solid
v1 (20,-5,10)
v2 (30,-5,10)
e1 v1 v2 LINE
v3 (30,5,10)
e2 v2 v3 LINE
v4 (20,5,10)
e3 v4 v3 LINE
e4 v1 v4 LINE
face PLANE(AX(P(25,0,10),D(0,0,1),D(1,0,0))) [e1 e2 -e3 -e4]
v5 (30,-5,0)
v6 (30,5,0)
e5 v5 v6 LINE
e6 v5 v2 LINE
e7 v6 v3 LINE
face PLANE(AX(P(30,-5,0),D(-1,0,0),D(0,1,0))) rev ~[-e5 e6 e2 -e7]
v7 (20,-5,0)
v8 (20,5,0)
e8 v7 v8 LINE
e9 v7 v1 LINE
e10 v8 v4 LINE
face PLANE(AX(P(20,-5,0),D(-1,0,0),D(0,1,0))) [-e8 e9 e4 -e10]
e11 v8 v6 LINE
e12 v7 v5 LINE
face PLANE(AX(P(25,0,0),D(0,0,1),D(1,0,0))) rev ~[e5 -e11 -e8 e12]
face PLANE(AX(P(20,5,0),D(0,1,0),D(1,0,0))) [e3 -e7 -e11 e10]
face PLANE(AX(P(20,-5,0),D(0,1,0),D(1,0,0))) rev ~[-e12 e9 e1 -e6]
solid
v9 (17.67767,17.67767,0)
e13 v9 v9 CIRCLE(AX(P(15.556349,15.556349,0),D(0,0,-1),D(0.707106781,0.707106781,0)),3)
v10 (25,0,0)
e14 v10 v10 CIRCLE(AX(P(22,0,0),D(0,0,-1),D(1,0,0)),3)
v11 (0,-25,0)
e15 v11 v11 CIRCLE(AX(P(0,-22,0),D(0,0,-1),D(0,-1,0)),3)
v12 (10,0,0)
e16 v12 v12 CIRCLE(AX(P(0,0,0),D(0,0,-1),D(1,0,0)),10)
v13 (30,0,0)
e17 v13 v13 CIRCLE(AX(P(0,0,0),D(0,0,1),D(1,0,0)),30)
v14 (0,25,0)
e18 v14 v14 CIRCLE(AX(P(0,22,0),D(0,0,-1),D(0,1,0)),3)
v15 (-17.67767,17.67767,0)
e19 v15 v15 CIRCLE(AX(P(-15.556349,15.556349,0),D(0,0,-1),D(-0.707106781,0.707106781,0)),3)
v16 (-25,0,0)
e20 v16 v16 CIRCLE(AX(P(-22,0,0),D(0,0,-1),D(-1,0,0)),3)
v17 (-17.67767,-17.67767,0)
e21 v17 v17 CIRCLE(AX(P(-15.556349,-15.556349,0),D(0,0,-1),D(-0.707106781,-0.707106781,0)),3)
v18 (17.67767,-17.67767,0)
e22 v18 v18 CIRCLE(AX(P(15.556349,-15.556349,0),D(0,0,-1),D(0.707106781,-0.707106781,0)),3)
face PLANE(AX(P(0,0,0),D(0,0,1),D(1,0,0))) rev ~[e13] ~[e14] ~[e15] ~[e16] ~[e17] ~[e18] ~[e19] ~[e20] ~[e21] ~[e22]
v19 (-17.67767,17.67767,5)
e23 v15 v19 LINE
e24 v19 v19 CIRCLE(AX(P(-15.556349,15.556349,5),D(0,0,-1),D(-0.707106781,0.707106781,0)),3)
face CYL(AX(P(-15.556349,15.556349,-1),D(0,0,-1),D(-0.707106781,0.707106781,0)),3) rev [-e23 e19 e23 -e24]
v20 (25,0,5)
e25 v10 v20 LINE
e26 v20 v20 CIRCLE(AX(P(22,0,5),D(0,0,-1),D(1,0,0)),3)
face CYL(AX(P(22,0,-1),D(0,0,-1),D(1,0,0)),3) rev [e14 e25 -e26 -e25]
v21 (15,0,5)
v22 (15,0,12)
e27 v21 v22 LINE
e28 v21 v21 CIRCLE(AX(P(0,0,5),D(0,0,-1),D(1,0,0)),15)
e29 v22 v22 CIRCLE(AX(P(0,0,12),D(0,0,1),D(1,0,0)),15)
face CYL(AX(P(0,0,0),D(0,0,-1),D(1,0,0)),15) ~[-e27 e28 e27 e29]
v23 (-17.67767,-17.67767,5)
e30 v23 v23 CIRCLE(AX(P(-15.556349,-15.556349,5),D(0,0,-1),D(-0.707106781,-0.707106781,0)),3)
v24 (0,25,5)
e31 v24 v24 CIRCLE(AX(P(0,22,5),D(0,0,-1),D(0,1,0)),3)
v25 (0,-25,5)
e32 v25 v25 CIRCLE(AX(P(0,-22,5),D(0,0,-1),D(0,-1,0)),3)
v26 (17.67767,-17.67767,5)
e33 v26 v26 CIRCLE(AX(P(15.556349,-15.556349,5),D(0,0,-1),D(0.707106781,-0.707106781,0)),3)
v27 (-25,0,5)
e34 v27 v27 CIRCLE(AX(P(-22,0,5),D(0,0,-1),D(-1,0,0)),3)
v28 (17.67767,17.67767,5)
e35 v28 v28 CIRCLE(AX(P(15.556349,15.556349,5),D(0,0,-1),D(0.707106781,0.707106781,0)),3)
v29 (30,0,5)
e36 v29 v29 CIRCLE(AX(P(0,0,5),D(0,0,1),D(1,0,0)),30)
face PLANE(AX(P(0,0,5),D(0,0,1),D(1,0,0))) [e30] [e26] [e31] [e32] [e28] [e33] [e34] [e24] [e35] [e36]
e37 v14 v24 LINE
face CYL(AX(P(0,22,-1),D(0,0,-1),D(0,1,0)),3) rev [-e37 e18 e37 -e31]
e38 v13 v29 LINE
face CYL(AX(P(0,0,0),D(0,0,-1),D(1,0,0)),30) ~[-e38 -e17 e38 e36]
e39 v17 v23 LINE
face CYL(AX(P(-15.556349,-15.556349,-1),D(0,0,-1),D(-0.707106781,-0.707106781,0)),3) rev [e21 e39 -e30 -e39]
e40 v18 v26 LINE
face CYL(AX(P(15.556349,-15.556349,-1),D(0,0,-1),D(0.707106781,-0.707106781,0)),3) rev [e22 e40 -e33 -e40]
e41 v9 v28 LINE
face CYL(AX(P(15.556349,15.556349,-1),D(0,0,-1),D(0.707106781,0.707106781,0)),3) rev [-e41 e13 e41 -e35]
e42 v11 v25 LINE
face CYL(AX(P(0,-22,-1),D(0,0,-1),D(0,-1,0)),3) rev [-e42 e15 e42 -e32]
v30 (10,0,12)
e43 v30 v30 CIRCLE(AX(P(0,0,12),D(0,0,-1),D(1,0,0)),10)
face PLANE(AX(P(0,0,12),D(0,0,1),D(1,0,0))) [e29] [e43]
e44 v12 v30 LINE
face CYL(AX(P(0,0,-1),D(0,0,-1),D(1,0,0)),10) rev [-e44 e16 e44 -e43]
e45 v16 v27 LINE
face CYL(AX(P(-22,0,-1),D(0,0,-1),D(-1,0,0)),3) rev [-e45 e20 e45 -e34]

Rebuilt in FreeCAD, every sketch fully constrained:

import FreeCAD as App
import Part
import Sketcher

V = App.Vector

doc = App.newDocument("Part")
params = doc.addObject("Spreadsheet::Sheet", "Params")
for row, (alias, value) in enumerate([
    ("sketch1_width", "10 mm"),
    ("pad1_length", "10 mm"),
    ("sketch2_diameter", "6 mm"),
    ("pad2_length", "10 mm"),
    ("sketch3_diameter", "20 mm"),
    ("pad3_length", "30 mm"),
    ("sketch4_diameter", "30 mm"),
    ("pad4_length", "12 mm"),
    ("sketch5_diameter", "60 mm"),
    ("pad5_length", "5 mm"),
], start=1):
    params.set(f"A{row}", alias)
    params.set(f"B{row}", "=" + value)
    params.setAlias(f"B{row}", alias)

body = doc.addObject("PartDesign::Body", "Body")

# Sketch on XY plane
sketch1 = body.newObject("Sketcher::SketchObject", "Sketch")
sketch1.AttachmentSupport = (doc.getObject("XY_Plane"), [""])
sketch1.MapMode = "FlatFace"
sketch1.addGeometry(Part.LineSegment(V(20, 5, 0), V(20, -5, 0)), False)
sketch1.addGeometry(Part.LineSegment(V(20, -5, 0), V(30, -5, 0)), False)
sketch1.addGeometry(Part.LineSegment(V(30, -5, 0), V(30, 5, 0)), False)
sketch1.addGeometry(Part.LineSegment(V(30, 5, 0), V(20, 5, 0)), False)
sketch1.addConstraint(Sketcher.Constraint("Coincident", 0, 2, 1, 1))
sketch1.addConstraint(Sketcher.Constraint("Coincident", 1, 2, 2, 1))
sketch1.addConstraint(Sketcher.Constraint("Coincident", 2, 2, 3, 1))
sketch1.addConstraint(Sketcher.Constraint("Coincident", 3, 2, 0, 1))
sketch1.addConstraint(Sketcher.Constraint("Vertical", 0))
sketch1.addConstraint(Sketcher.Constraint("Horizontal", 1))
sketch1.addConstraint(Sketcher.Constraint("Vertical", 2))
sketch1.addConstraint(Sketcher.Constraint("Horizontal", 3))
sketch1.addConstraint(Sketcher.Constraint("Equal", 3, 0))
sketch1.addConstraint(Sketcher.Constraint("DistanceX", 1, 1, 1, 2, 10.0))
sketch1.addConstraint(Sketcher.Constraint("DistanceX", -1, 1, 0, 2, 20.0))
sketch1.addConstraint(Sketcher.Constraint("DistanceY", 0, 2, -1, 1, 5.0))
sketch1.setExpression("Constraints[9]", "Params.sketch1_width")
pad1 = body.newObject("PartDesign::Pad", "Pad")
pad1.Profile = sketch1
pad1.setExpression("Length", "Params.pad1_length")
body2 = doc.addObject("PartDesign::Body", "Body001")

# Sketch on XY plane
sketch2 = body2.newObject("Sketcher::SketchObject", "Sketch001")
sketch2.AttachmentSupport = (doc.getObject("XY_Plane001"), [""])
sketch2.MapMode = "FlatFace"
sketch2.AttachmentOffset = App.Placement(V(0, 0, -1), App.Rotation())
sketch2.addGeometry(Part.Circle(V(22, 0, 0), V(0, 0, 1), 3), False)
sketch2.addConstraint(Sketcher.Constraint("PointOnObject", 0, 3, -1))
sketch2.addConstraint(Sketcher.Constraint("Diameter", 0, 6.0))
sketch2.addConstraint(Sketcher.Constraint("DistanceX", -1, 1, 0, 3, 22.0))
sketch2.setExpression("Constraints[1]", "Params.sketch2_diameter")
pad2 = body2.newObject("PartDesign::Pad", "Pad001")
pad2.Profile = sketch2
pad2.setExpression("Length", "Params.pad2_length")
body3 = doc.addObject("PartDesign::Body", "Body002")
body3.AllowCompound = True
doc.recompute()

body3.BaseFeature = body2
doc.recompute()

body4 = doc.addObject("PartDesign::Body", "Body003")
body4.BaseFeature = body2
body4.Placement = App.Placement(V(0, 0, 0), App.Rotation(V(0, 0, 1), 45))
boolean = body3.newObject("PartDesign::Boolean", "Boolean")
boolean.Type = "Fuse"
boolean.addObjects([body4])
doc.recompute()

body5 = doc.addObject("PartDesign::Body", "Body004")
body5.BaseFeature = body2
body5.Placement = App.Placement(V(0, 0, 0), App.Rotation(V(0, 0, 1), 90))
boolean2 = body3.newObject("PartDesign::Boolean", "Boolean001")
boolean2.Type = "Fuse"
boolean2.addObjects([body5])
doc.recompute()

body6 = doc.addObject("PartDesign::Body", "Body005")
body6.BaseFeature = body2
body6.Placement = App.Placement(V(0, 0, 0), App.Rotation(V(0, 0, 1), 135))
boolean3 = body3.newObject("PartDesign::Boolean", "Boolean002")
boolean3.Type = "Fuse"
boolean3.addObjects([body6])
doc.recompute()

body7 = doc.addObject("PartDesign::Body", "Body006")
body7.BaseFeature = body2
body7.Placement = App.Placement(V(0, 0, 0), App.Rotation(V(0, 0, 1), 180))
boolean4 = body3.newObject("PartDesign::Boolean", "Boolean003")
boolean4.Type = "Fuse"
boolean4.addObjects([body7])
doc.recompute()

body8 = doc.addObject("PartDesign::Body", "Body007")
body8.BaseFeature = body2
body8.Placement = App.Placement(V(0, 0, 0), App.Rotation(V(0, 0, 1), 225))
boolean5 = body3.newObject("PartDesign::Boolean", "Boolean004")
boolean5.Type = "Fuse"
boolean5.addObjects([body8])
doc.recompute()

body9 = doc.addObject("PartDesign::Body", "Body008")
body9.BaseFeature = body2
body9.Placement = App.Placement(V(0, 0, 0), App.Rotation(V(0, 0, 1), 270))
boolean6 = body3.newObject("PartDesign::Boolean", "Boolean005")
boolean6.Type = "Fuse"
boolean6.addObjects([body9])
doc.recompute()

body2.Placement = App.Placement(V(0, 0, 0), App.Rotation(V(0, 0, 1), 315))
boolean7 = body3.newObject("PartDesign::Boolean", "Boolean006")
boolean7.Type = "Fuse"
boolean7.addObjects([body2])
body10 = doc.addObject("PartDesign::Body", "Body009")

# Sketch on XY plane
sketch3 = body10.newObject("Sketcher::SketchObject", "Sketch002")
sketch3.AttachmentSupport = (doc.getObject("XY_Plane009"), [""])
sketch3.MapMode = "FlatFace"
sketch3.AttachmentOffset = App.Placement(V(0, 0, -1), App.Rotation())
sketch3.addGeometry(Part.Circle(V(0, 0, 0), V(0, 0, 1), 10), False)
sketch3.addConstraint(Sketcher.Constraint("Coincident", 0, 3, -1, 1))
sketch3.addConstraint(Sketcher.Constraint("Diameter", 0, 20.0))
sketch3.setExpression("Constraints[1]", "Params.sketch3_diameter")
pad3 = body10.newObject("PartDesign::Pad", "Pad002")
pad3.Profile = sketch3
pad3.setExpression("Length", "Params.pad3_length")
body11 = doc.addObject("PartDesign::Body", "Body010")

# Sketch on XY plane
sketch4 = body11.newObject("Sketcher::SketchObject", "Sketch003")
sketch4.AttachmentSupport = (doc.getObject("XY_Plane010"), [""])
sketch4.MapMode = "FlatFace"
sketch4.addGeometry(Part.Circle(V(0, 0, 0), V(0, 0, 1), 15), False)
sketch4.addConstraint(Sketcher.Constraint("Coincident", 0, 3, -1, 1))
sketch4.addConstraint(Sketcher.Constraint("Diameter", 0, 30.0))
sketch4.setExpression("Constraints[1]", "Params.sketch4_diameter")
pad4 = body11.newObject("PartDesign::Pad", "Pad003")
pad4.Profile = sketch4
pad4.setExpression("Length", "Params.pad4_length")
body12 = doc.addObject("PartDesign::Body", "Body011")

# Sketch on XY plane
sketch5 = body12.newObject("Sketcher::SketchObject", "Sketch004")
sketch5.AttachmentSupport = (doc.getObject("XY_Plane011"), [""])
sketch5.MapMode = "FlatFace"
sketch5.addGeometry(Part.Circle(V(0, 0, 0), V(0, 0, 1), 30), False)
sketch5.addConstraint(Sketcher.Constraint("Coincident", 0, 3, -1, 1))
sketch5.addConstraint(Sketcher.Constraint("Diameter", 0, 60.0))
sketch5.setExpression("Constraints[1]", "Params.sketch5_diameter")
pad5 = body12.newObject("PartDesign::Pad", "Pad004")
pad5.Profile = sketch5
pad5.setExpression("Length", "Params.pad5_length")
doc.recompute()

boolean8 = body12.newObject("PartDesign::Boolean", "Boolean007")
boolean8.Type = "Fuse"
boolean8.addObjects([body11])
doc.recompute()

boolean9 = body12.newObject("PartDesign::Boolean", "Boolean008")
boolean9.Type = "Cut"
boolean9.addObjects([body10])
doc.recompute()

boolean10 = body12.newObject("PartDesign::Boolean", "Boolean009")
boolean10.Type = "Cut"
boolean10.addObjects([body3])

doc.recompute()
